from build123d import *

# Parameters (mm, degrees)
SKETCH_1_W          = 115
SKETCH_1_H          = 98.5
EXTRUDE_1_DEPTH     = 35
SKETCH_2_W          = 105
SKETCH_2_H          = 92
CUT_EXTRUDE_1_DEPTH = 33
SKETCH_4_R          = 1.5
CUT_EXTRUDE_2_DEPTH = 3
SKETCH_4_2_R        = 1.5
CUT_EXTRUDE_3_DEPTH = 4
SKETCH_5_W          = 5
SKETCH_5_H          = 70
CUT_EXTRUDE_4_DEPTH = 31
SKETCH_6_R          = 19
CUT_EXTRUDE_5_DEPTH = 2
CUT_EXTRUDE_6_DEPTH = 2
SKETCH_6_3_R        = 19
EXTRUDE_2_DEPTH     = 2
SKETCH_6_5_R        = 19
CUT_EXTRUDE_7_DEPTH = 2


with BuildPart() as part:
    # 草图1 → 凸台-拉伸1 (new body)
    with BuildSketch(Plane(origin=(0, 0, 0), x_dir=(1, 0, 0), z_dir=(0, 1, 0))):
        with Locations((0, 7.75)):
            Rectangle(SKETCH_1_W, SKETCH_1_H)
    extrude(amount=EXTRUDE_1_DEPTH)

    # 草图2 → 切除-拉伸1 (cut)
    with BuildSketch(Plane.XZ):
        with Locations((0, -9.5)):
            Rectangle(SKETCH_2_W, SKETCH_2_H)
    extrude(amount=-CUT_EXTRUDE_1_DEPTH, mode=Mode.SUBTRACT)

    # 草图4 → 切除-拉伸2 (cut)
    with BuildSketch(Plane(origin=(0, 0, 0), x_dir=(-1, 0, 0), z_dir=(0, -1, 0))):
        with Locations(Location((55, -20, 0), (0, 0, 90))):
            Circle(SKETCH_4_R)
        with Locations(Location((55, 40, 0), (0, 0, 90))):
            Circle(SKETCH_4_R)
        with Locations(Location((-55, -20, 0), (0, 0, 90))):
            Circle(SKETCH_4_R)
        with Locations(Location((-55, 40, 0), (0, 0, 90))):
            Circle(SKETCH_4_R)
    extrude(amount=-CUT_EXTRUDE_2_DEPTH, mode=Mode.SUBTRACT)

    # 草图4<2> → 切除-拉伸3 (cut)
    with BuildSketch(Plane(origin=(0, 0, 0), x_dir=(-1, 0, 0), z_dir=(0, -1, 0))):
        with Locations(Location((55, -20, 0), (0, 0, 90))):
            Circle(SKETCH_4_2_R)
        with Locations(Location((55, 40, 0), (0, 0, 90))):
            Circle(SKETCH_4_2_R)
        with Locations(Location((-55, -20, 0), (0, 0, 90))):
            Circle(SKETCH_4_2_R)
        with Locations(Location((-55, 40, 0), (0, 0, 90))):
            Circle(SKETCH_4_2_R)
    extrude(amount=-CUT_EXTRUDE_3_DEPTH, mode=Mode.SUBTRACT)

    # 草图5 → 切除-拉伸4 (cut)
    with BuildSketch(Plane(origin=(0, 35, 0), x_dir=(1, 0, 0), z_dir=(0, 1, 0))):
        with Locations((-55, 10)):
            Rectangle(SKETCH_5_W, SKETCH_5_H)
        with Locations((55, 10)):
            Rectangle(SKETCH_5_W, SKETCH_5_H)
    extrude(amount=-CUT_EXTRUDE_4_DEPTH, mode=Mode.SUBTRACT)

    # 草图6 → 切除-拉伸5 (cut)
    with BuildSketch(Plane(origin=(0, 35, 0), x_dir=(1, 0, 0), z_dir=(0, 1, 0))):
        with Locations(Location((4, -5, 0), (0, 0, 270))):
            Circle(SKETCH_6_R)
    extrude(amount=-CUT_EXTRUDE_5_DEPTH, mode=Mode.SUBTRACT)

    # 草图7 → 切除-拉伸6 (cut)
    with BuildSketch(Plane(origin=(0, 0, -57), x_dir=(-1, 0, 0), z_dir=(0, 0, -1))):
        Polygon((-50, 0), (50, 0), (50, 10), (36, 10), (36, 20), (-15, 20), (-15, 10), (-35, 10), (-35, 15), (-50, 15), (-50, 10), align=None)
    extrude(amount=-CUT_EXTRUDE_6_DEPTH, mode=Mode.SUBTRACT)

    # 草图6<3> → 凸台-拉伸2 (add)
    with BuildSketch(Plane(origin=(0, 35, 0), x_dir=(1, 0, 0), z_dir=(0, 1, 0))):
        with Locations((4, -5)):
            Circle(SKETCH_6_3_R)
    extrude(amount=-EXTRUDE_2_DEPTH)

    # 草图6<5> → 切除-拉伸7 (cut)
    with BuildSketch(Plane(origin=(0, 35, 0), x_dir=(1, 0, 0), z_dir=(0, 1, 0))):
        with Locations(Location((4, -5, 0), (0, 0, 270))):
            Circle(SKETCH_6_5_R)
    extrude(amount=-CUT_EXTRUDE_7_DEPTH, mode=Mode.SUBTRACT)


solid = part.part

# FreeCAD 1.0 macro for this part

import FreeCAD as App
import Part
import Sketcher
from FreeCAD import Vector

doc = App.newDocument("Part")
body = doc.addObject("PartDesign::Body", "Body")

# Sketch on XZ plane
sketch1 = body.newObject("Sketcher::SketchObject", "Sketch")
sketch1.AttachmentSupport = (doc.getObject("XZ_Plane"), [""])
sketch1.MapMode = "FlatFace"
sketch1.addGeometry([
    Part.LineSegment(Vector(-58, -57, 0), Vector(-58, 42, 0)),
    Part.LineSegment(Vector(-58, 42, 0), Vector(58, 42, 0)),
    Part.LineSegment(Vector(58, 42, 0), Vector(58, -57, 0)),
    Part.LineSegment(Vector(58, -57, 0), Vector(-58, -57, 0)),
], False)
sketch1.addConstraint([
    Sketcher.Constraint("Coincident", 0, 2, 1, 1),
    Sketcher.Constraint("Coincident", 1, 2, 2, 1),
    Sketcher.Constraint("Coincident", 2, 2, 3, 1),
    Sketcher.Constraint("Coincident", 3, 2, 0, 1),
    Sketcher.Constraint("Vertical", 0),
    Sketcher.Constraint("Horizontal", 1),
    Sketcher.Constraint("Vertical", 2),
    Sketcher.Constraint("Horizontal", 3),
    Sketcher.Constraint("DistanceX", 1, 1, 1, 2, 115.0),
    Sketcher.Constraint("DistanceY", 0, 1, 0, 2, 98.5),
    Sketcher.Constraint("DistanceY", 2, 2, -1, 1, 57.0),
    Sketcher.Constraint("DistanceX", 0, 2, -1, 1, 57.5),
])
pad1 = body.newObject("PartDesign::Pad", "Pad")
pad1.Profile = sketch1
pad1.Length = 35
pad1.Reversed = True

# Sketch on XZ plane
sketch2 = body.newObject("Sketcher::SketchObject", "Sketch001")
sketch2.AttachmentSupport = (doc.getObject("XZ_Plane"), [""])
sketch2.MapMode = "FlatFace"
sketch2.addGeometry([
    Part.LineSegment(Vector(-52, 36, 0), Vector(-52, -56, 0)),
    Part.LineSegment(Vector(-52, -56, 0), Vector(52, -56, 0)),
    Part.LineSegment(Vector(52, -56, 0), Vector(52, 36, 0)),
    Part.LineSegment(Vector(52, 36, 0), Vector(-52, 36, 0)),
], False)
sketch2.addConstraint([
    Sketcher.Constraint("Coincident", 0, 2, 1, 1),
    Sketcher.Constraint("Coincident", 1, 2, 2, 1),
    Sketcher.Constraint("Coincident", 2, 2, 3, 1),
    Sketcher.Constraint("Coincident", 3, 2, 0, 1),
    Sketcher.Constraint("Vertical", 0),
    Sketcher.Constraint("Horizontal", 1),
    Sketcher.Constraint("Vertical", 2),
    Sketcher.Constraint("Horizontal", 3),
    Sketcher.Constraint("DistanceX", 1, 1, 1, 2, 105.0),
    Sketcher.Constraint("DistanceY", 0, 2, 0, 1, 92.0),
    Sketcher.Constraint("DistanceX", 0, 2, -1, 1, 52.5),
    Sketcher.Constraint("DistanceY", 0, 2, -1, 1, 55.5),
])
pocket1 = body.newObject("PartDesign::Pocket", "Pocket")
pocket1.Profile = sketch2
pocket1.Length = 33

# Sketch on XZ plane
sketch3 = body.newObject("Sketcher::SketchObject", "Sketch002")
sketch3.AttachmentSupport = (doc.getObject("XZ_Plane"), [""])
sketch3.MapMode = "FlatFace"
sketch3.addGeometry([
    Part.Circle(Vector(-55, 20, 0), Vector(0, 0, 1), 1.5),
    Part.Circle(Vector(-55, -40, 0), Vector(0, 0, 1), 1.5),
    Part.Circle(Vector(55, 20, 0), Vector(0, 0, 1), 1.5),
    Part.Circle(Vector(55, -40, 0), Vector(0, 0, 1), 1.5),
], False)
sketch3.addConstraint([
    Sketcher.Constraint("Equal", 0, 1),
    Sketcher.Constraint("Equal", 1, 2),
    Sketcher.Constraint("Equal", 2, 3),
    Sketcher.Constraint("Symmetric", 0, 3, 2, 3, -2),
    Sketcher.Constraint("Symmetric", 1, 3, 3, 3, -2),
    Sketcher.Constraint("Vertical", 0, 3, 1, 3),
    Sketcher.Constraint("Diameter", 0, 3.0),
    Sketcher.Constraint("DistanceX", 0, 3, -1, 1, 55.0),
    Sketcher.Constraint("DistanceY", -1, 1, 0, 3, 20.0),
    Sketcher.Constraint("DistanceY", 1, 3, -1, 1, 40.0),
])
pocket2 = body.newObject("PartDesign::Pocket", "Pocket001")
pocket2.Profile = sketch3
pocket2.Length = 3

# Sketch on XZ plane
sketch4 = body.newObject("Sketcher::SketchObject", "Sketch003")
sketch4.AttachmentSupport = (doc.getObject("XZ_Plane"), [""])
sketch4.MapMode = "FlatFace"
sketch4.addGeometry([
    Part.Circle(Vector(-55, 20, 0), Vector(0, 0, 1), 1.5),
    Part.Circle(Vector(-55, -40, 0), Vector(0, 0, 1), 1.5),
    Part.Circle(Vector(55, 20, 0), Vector(0, 0, 1), 1.5),
    Part.Circle(Vector(55, -40, 0), Vector(0, 0, 1), 1.5),
], False)
sketch4.addConstraint([
    Sketcher.Constraint("Equal", 0, 1),
    Sketcher.Constraint("Equal", 1, 2),
    Sketcher.Constraint("Equal", 2, 3),
    Sketcher.Constraint("Symmetric", 0, 3, 2, 3, -2),
    Sketcher.Constraint("Symmetric", 1, 3, 3, 3, -2),
    Sketcher.Constraint("Vertical", 0, 3, 1, 3),
    Sketcher.Constraint("Diameter", 0, 3.0),
    Sketcher.Constraint("DistanceX", 0, 3, -1, 1, 55.0),
    Sketcher.Constraint("DistanceY", -1, 1, 0, 3, 20.0),
    Sketcher.Constraint("DistanceY", 1, 3, -1, 1, 40.0),
])
pocket3 = body.newObject("PartDesign::Pocket", "Pocket002")
pocket3.Profile = sketch4
pocket3.Length = 4

# Sketch on XZ plane
sketch5 = body.newObject("Sketcher::SketchObject", "Sketch004")
sketch5.AttachmentSupport = (doc.getObject("XZ_Plane"), [""])
sketch5.MapMode = "FlatFace"
sketch5.AttachmentOffset = App.Placement(Vector(0, 0, -35), App.Rotation())
sketch5.addGeometry([
    Part.LineSegment(Vector(-58, -45, 0), Vector(-58, 25, 0)),  # 0
    Part.LineSegment(Vector(-58, 25, 0), Vector(-52, 25, 0)),  # 1
    Part.LineSegment(Vector(-52, 25, 0), Vector(-52, -45, 0)),  # 2
    Part.LineSegment(Vector(-52, -45, 0), Vector(-58, -45, 0)),  # 3
    Part.LineSegment(Vector(52, -45, 0), Vector(52, 25, 0)),  # 4
    Part.LineSegment(Vector(52, 25, 0), Vector(58, 25, 0)),  # 5
    Part.LineSegment(Vector(58, 25, 0), Vector(58, -45, 0)),  # 6
    Part.LineSegment(Vector(58, -45, 0), Vector(52, -45, 0)),  # 7
], False)
sketch5.addConstraint([
    Sketcher.Constraint("Coincident", 0, 2, 1, 1),
    Sketcher.Constraint("Coincident", 1, 2, 2, 1),
    Sketcher.Constraint("Coincident", 2, 2, 3, 1),
    Sketcher.Constraint("Coincident", 3, 2, 0, 1),
    Sketcher.Constraint("Coincident", 4, 2, 5, 1),
    Sketcher.Constraint("Coincident", 5, 2, 6, 1),
    Sketcher.Constraint("Coincident", 6, 2, 7, 1),
    Sketcher.Constraint("Coincident", 7, 2, 4, 1),
    Sketcher.Constraint("Vertical", 0),
    Sketcher.Constraint("Horizontal", 1),
    Sketcher.Constraint("Vertical", 2),
    Sketcher.Constraint("Horizontal", 3),
    Sketcher.Constraint("Vertical", 4),
    Sketcher.Constraint("Horizontal", 5),
    Sketcher.Constraint("Vertical", 6),
    Sketcher.Constraint("Horizontal", 7),
    Sketcher.Constraint("Symmetric", 1, 2, 4, 2, -2),
    Sketcher.Constraint("Symmetric", 3, 2, 6, 2, -2),
    Sketcher.Constraint("DistanceX", 1, 1, 1, 2, 5.0),
    Sketcher.Constraint("DistanceY", 0, 1, 0, 2, 70.0),
    Sketcher.Constraint("DistanceY", -1, 1, 0, 2, 25.0),
    Sketcher.Constraint("DistanceX", 1, 2, 4, 2, 105.0),
])
pocket4 = body.newObject("PartDesign::Pocket", "Pocket003")
pocket4.Profile = sketch5
pocket4.Length = 31
pocket4.Reversed = True

# Sketch on XZ plane
sketch6 = body.newObject("Sketcher::SketchObject", "Sketch005")
sketch6.AttachmentSupport = (doc.getObject("XZ_Plane"), [""])
sketch6.MapMode = "FlatFace"
sketch6.AttachmentOffset = App.Placement(Vector(0, 0, -35), App.Rotation())
sketch6.addGeometry(Part.Circle(Vector(4, 5, 0), Vector(0, 0, 1), 19), False)
sketch6.addConstraint([
    Sketcher.Constraint("Diameter", 0, 38.0),
    Sketcher.Constraint("DistanceX", -1, 1, 0, 3, 4.0),
    Sketcher.Constraint("DistanceY", -1, 1, 0, 3, 5.0),
])
pocket5 = body.newObject("PartDesign::Pocket", "Pocket004")
pocket5.Profile = sketch6
pocket5.Length = 2
pocket5.Reversed = True

# Sketch on XY plane
sketch7 = body.newObject("Sketcher::SketchObject", "Sketch006")
sketch7.AttachmentSupport = (doc.getObject("XY_Plane"), [""])
sketch7.MapMode = "FlatFace"
sketch7.AttachmentOffset = App.Placement(Vector(0, 0, -57), App.Rotation())
sketch7.addGeometry([
    Part.LineSegment(Vector(50, 0, 0), Vector(-50, 0, 0)),  # 0
    Part.LineSegment(Vector(-50, 0, 0), Vector(-50, 10, 0)),  # 1
    Part.LineSegment(Vector(-50, 10, 0), Vector(-36, 10, 0)),  # 2
    Part.LineSegment(Vector(-36, 10, 0), Vector(-36, 20, 0)),  # 3
    Part.LineSegment(Vector(-36, 20, 0), Vector(15, 20, 0)),  # 4
    Part.LineSegment(Vector(15, 20, 0), Vector(15, 10, 0)),  # 5
    Part.LineSegment(Vector(15, 10, 0), Vector(35, 10, 0)),  # 6
    Part.LineSegment(Vector(35, 10, 0), Vector(35, 15, 0)),  # 7
    Part.LineSegment(Vector(35, 15, 0), Vector(50, 15, 0)),  # 8
    Part.LineSegment(Vector(50, 15, 0), Vector(50, 0, 0)),  # 9
], False)
sketch7.addConstraint([
    Sketcher.Constraint("Coincident", 0, 2, 1, 1),
    Sketcher.Constraint("Coincident", 1, 2, 2, 1),
    Sketcher.Constraint("Coincident", 2, 2, 3, 1),
    Sketcher.Constraint("Coincident", 3, 2, 4, 1),
    Sketcher.Constraint("Coincident", 4, 2, 5, 1),
    Sketcher.Constraint("Coincident", 5, 2, 6, 1),
    Sketcher.Constraint("Coincident", 6, 2, 7, 1),
    Sketcher.Constraint("Coincident", 7, 2, 8, 1),
    Sketcher.Constraint("Coincident", 8, 2, 9, 1),
    Sketcher.Constraint("Coincident", 9, 2, 0, 1),
    Sketcher.Constraint("Horizontal", 0),
    Sketcher.Constraint("Vertical", 1),
    Sketcher.Constraint("Horizontal", 2),
    Sketcher.Constraint("Vertical", 3),
    Sketcher.Constraint("Horizontal", 4),
    Sketcher.Constraint("Vertical", 5),
    Sketcher.Constraint("Horizontal", 6),
    Sketcher.Constraint("Vertical", 7),
    Sketcher.Constraint("Horizontal", 8),
    Sketcher.Constraint("Vertical", 9),
    Sketcher.Constraint("Symmetric", 0, 2, 9, 2, -1, 1),
    Sketcher.Constraint("Horizontal", 2, 2, 5, 2),
    Sketcher.Constraint("Equal", 1, 3),
    Sketcher.Constraint("Equal", 8, 9),
    Sketcher.Constraint("DistanceX", 0, 2, 0, 1, 100.0),
    Sketcher.Constraint("DistanceX", 2, 1, 2, 2, 14.0),
    Sketcher.Constraint("DistanceX", 4, 1, 4, 2, 51.0),
    Sketcher.Constraint("DistanceX", 6, 1, 6, 2, 20.0),
    Sketcher.Constraint("DistanceY", 1, 1, 1, 2, 10.0),
])
pocket6 = body.newObject("PartDesign::Pocket", "Pocket005")
pocket6.Profile = sketch7
pocket6.Length = 2
pocket6.Reversed = True

# Sketch on XZ plane
sketch8 = body.newObject("Sketcher::SketchObject", "Sketch007")
sketch8.AttachmentSupport = (doc.getObject("XZ_Plane"), [""])
sketch8.MapMode = "FlatFace"
sketch8.AttachmentOffset = App.Placement(Vector(0, 0, -35), App.Rotation())
sketch8.addGeometry(Part.Circle(Vector(4, 5, 0), Vector(0, 0, 1), 19), False)
sketch8.addConstraint([
    Sketcher.Constraint("Diameter", 0, 38.0),
    Sketcher.Constraint("DistanceX", -1, 1, 0, 3, 4.0),
    Sketcher.Constraint("DistanceY", -1, 1, 0, 3, 5.0),
])
pad2 = body.newObject("PartDesign::Pad", "Pad001")
pad2.Profile = sketch8
pad2.Length = 2

# Sketch on XZ plane
sketch9 = body.newObject("Sketcher::SketchObject", "Sketch008")
sketch9.AttachmentSupport = (doc.getObject("XZ_Plane"), [""])
sketch9.MapMode = "FlatFace"
sketch9.AttachmentOffset = App.Placement(Vector(0, 0, -35), App.Rotation())
sketch9.addGeometry(Part.Circle(Vector(4, 5, 0), Vector(0, 0, 1), 19), False)
sketch9.addConstraint([
    Sketcher.Constraint("Diameter", 0, 38.0),
    Sketcher.Constraint("DistanceX", -1, 1, 0, 3, 4.0),
    Sketcher.Constraint("DistanceY", -1, 1, 0, 3, 5.0),
])
pocket7 = body.newObject("PartDesign::Pocket", "Pocket006")
pocket7.Profile = sketch9
pocket7.Length = 2
pocket7.Reversed = True

doc.recompute()
